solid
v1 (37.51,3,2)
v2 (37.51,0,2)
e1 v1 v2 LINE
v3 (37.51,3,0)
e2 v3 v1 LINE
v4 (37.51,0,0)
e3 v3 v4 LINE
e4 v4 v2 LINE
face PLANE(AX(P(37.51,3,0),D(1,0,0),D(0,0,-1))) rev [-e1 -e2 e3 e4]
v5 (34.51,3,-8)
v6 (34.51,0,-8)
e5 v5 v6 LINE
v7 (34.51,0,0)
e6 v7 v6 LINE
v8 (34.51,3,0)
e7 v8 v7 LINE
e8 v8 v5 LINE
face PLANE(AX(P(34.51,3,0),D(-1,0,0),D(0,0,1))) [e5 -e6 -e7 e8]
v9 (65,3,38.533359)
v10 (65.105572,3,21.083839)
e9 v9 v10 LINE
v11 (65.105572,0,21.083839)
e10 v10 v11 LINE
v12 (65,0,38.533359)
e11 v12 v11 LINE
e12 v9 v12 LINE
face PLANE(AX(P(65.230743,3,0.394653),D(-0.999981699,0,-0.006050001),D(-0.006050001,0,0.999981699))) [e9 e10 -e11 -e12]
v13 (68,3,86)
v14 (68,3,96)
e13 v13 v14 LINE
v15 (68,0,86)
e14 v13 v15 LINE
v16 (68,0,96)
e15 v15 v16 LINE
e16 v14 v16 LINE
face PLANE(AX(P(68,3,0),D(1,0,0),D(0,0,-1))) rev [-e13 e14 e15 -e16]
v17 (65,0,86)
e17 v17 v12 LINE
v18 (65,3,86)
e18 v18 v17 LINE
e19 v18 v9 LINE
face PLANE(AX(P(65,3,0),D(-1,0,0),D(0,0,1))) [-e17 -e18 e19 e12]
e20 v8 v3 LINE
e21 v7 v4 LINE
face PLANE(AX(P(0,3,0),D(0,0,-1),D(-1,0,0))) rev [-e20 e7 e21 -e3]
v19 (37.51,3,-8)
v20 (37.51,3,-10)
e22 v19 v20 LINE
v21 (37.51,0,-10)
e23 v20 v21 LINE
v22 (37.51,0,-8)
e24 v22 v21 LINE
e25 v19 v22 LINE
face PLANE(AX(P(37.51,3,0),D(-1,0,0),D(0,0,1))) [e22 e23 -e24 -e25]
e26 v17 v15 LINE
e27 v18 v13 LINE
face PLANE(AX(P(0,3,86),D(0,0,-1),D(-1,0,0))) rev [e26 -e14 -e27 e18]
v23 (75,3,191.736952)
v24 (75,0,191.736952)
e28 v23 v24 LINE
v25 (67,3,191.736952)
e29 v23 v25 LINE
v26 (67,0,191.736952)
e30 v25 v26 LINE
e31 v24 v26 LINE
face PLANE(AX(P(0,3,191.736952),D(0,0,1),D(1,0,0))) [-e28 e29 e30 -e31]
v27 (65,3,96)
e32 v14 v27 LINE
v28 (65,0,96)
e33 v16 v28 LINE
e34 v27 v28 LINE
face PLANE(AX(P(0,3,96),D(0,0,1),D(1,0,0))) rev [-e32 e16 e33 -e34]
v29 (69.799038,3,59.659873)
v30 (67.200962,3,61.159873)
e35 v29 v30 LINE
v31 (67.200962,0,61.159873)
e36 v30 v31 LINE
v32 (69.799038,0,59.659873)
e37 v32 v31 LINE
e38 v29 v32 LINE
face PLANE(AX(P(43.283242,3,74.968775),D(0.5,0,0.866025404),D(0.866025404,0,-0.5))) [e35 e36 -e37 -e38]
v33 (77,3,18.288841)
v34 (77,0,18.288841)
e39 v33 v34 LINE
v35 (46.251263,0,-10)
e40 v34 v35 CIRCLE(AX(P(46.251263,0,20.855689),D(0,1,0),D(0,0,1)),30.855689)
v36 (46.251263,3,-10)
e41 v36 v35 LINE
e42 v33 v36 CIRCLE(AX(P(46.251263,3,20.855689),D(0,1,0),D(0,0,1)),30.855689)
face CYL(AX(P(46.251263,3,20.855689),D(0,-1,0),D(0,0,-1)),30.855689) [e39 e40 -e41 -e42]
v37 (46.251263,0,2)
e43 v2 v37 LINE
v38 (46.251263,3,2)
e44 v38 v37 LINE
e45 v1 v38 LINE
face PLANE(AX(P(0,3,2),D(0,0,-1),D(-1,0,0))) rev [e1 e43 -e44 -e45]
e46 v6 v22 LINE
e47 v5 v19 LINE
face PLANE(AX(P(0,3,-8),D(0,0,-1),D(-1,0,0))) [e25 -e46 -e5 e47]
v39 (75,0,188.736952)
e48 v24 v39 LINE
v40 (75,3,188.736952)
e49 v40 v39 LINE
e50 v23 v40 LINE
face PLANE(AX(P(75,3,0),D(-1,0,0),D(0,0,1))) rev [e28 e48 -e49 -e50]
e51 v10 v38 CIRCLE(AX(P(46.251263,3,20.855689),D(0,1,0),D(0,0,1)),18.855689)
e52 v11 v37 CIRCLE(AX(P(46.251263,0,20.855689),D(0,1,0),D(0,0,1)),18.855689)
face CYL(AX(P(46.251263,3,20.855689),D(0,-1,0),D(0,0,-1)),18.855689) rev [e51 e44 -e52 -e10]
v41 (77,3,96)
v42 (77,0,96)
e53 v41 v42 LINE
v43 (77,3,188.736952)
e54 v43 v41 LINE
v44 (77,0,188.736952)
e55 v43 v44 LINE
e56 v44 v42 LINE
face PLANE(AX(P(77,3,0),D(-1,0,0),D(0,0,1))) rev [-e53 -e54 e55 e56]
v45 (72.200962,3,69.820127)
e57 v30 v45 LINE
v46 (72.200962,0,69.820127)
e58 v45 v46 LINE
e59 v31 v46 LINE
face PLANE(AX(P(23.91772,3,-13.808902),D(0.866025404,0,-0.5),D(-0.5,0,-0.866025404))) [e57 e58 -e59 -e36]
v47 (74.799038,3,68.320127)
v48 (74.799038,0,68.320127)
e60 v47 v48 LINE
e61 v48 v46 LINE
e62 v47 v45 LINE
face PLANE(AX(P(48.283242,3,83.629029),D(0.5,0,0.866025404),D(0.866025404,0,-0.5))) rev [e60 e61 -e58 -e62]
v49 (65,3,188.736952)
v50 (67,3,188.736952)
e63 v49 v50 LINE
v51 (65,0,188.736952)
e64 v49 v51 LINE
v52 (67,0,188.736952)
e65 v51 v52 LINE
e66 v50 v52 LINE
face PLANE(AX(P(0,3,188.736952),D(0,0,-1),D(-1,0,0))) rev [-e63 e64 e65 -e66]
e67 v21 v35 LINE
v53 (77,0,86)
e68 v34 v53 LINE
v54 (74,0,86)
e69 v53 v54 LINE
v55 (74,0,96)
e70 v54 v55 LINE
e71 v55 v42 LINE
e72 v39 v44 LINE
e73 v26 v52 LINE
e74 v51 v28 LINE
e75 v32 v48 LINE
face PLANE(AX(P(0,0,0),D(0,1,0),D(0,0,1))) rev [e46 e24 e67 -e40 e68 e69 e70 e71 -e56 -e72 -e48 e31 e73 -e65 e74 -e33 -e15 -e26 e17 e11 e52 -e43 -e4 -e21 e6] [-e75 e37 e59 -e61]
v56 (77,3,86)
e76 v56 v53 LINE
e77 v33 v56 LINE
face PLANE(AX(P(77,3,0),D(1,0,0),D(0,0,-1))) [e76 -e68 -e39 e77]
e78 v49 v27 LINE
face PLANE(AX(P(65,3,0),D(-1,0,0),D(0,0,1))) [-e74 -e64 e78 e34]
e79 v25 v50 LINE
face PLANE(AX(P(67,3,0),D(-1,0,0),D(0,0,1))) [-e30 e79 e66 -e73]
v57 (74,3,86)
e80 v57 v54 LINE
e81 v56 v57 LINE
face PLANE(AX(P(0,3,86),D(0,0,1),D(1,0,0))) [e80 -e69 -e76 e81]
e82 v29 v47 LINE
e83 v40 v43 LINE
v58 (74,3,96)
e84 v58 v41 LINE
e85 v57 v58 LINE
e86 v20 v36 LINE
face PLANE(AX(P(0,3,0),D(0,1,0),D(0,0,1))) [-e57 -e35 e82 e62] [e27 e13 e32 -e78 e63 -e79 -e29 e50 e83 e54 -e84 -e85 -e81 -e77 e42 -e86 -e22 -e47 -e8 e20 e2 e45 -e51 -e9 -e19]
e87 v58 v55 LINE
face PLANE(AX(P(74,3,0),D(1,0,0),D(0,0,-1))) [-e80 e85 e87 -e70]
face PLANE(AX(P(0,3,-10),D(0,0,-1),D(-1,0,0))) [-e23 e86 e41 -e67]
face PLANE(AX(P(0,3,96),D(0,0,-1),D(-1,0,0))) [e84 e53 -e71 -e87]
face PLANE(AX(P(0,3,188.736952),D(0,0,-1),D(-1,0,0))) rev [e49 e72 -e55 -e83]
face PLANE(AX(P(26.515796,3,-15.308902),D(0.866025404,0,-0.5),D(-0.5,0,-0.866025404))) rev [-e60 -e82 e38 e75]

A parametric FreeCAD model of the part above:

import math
import FreeCAD as App
import Part
import Sketcher
from FreeCAD import Vector
Q = App.Units.Quantity


def add_polygon(sketch, points):
    """Adds a closed chain of lines whose ends are joined by coincident constraints."""
    first, n = sketch.GeometryCount, len(points)
    for a, b in zip(points, points[1:] + points[:1]):
        sketch.addGeometry(Part.LineSegment(App.Vector(*a, 0), App.Vector(*b, 0)), False)
    for i in range(n):
        sketch.addConstraint(Sketcher.Constraint("Coincident", first + i, 2, first + (i + 1) % n, 1))

doc = App.newDocument("Part")
body = doc.addObject("PartDesign::Body", "Body")

# Sketch on XZ plane
sketch1 = doc.addObject("Sketcher::SketchObject", "Sketch")
body.addObject(sketch1)
sketch1.AttachmentSupport = (doc.XZ_Plane, [""])
sketch1.MapMode = "FlatFace"
sketch1.addGeometry(Part.LineSegment(Vector(34.51, 0, 0), Vector(37.51, 0, 0)), False)  # 0
sketch1.addGeometry(Part.LineSegment(Vector(37.51, 0, 0), Vector(37.51, 2, 0)), False)  # 1
sketch1.addGeometry(Part.LineSegment(Vector(37.51, 2, 0), Vector(46.25, 2, 0)), False)  # 2
sketch1.addGeometry(Part.ArcOfCircle(Part.Circle(Vector(46.25, 20.86, 0), Vector(0, 0, 1), 18.86), math.radians(-90), math.radians(0)), False)  # 3
sketch1.addGeometry(Part.ArcOfCircle(Part.Circle(Vector(46.25, 20.86, 0), Vector(0, 0, 1), 18.86), math.radians(0), math.radians(0.69)), False)  # 4
sketch1.addGeometry(Part.LineSegment(Vector(65.11, 21.08, 0), Vector(65, 38.53, 0)), False)  # 5
sketch1.addGeometry(Part.LineSegment(Vector(65, 38.53, 0), Vector(65, 86, 0)), False)  # 6
sketch1.addGeometry(Part.LineSegment(Vector(65, 86, 0), Vector(68, 86, 0)), False)  # 7
sketch1.addGeometry(Part.LineSegment(Vector(68, 86, 0), Vector(68, 96, 0)), False)  # 8
sketch1.addGeometry(Part.LineSegment(Vector(68, 96, 0), Vector(65, 96, 0)), False)  # 9
sketch1.addGeometry(Part.LineSegment(Vector(65, 96, 0), Vector(65, 188.74, 0)), False)  # 10
sketch1.addGeometry(Part.LineSegment(Vector(65, 188.74, 0), Vector(67, 188.74, 0)), False)  # 11
sketch1.addGeometry(Part.LineSegment(Vector(67, 188.74, 0), Vector(67, 191.74, 0)), False)  # 12
sketch1.addGeometry(Part.LineSegment(Vector(67, 191.74, 0), Vector(75, 191.74, 0)), False)  # 13
sketch1.addGeometry(Part.LineSegment(Vector(75, 191.74, 0), Vector(75, 188.74, 0)), False)  # 14
sketch1.addGeometry(Part.LineSegment(Vector(75, 188.74, 0), Vector(77, 188.74, 0)), False)  # 15
sketch1.addGeometry(Part.LineSegment(Vector(77, 188.74, 0), Vector(77, 96, 0)), False)  # 16
sketch1.addGeometry(Part.LineSegment(Vector(77, 96, 0), Vector(74, 96, 0)), False)  # 17
sketch1.addGeometry(Part.LineSegment(Vector(74, 96, 0), Vector(74, 86, 0)), False)  # 18
sketch1.addGeometry(Part.LineSegment(Vector(74, 86, 0), Vector(77, 86, 0)), False)  # 19
sketch1.addGeometry(Part.LineSegment(Vector(77, 86, 0), Vector(77, 18.29, 0)), False)  # 20
sketch1.addGeometry(Part.ArcOfCircle(Part.Circle(Vector(46.25, 20.86, 0), Vector(0, 0, 1), 30.86), math.radians(-90), math.radians(-5)), False)  # 21
sketch1.addGeometry(Part.LineSegment(Vector(46.25, -10, 0), Vector(37.51, -10, 0)), False)  # 22
sketch1.addGeometry(Part.LineSegment(Vector(37.51, -10, 0), Vector(37.51, -8, 0)), False)  # 23
sketch1.addGeometry(Part.LineSegment(Vector(37.51, -8, 0), Vector(34.51, -8, 0)), False)  # 24
sketch1.addGeometry(Part.LineSegment(Vector(34.51, -8, 0), Vector(34.51, 0, 0)), False)  # 25
add_polygon(sketch1, [(72.2, 69.82), (67.2, 61.16), (69.8, 59.66), (74.8, 68.32)])  # lines 26-29
sketch1.addConstraint([
    Sketcher.Constraint("Coincident", 0, 2, 1, 1),
    Sketcher.Constraint("Coincident", 1, 2, 2, 1),
    Sketcher.Constraint("Tangent", 2, 2, 3, 1),
    Sketcher.Constraint("Tangent", 3, 2, 4, 1),
    Sketcher.Constraint("Coincident", 4, 2, 5, 1),
    Sketcher.Constraint("Coincident", 5, 2, 6, 1),
    Sketcher.Constraint("Coincident", 6, 2, 7, 1),
    Sketcher.Constraint("Coincident", 7, 2, 8, 1),
    Sketcher.Constraint("Coincident", 8, 2, 9, 1),
    Sketcher.Constraint("Coincident", 9, 2, 10, 1),
    Sketcher.Constraint("Coincident", 10, 2, 11, 1),
    Sketcher.Constraint("Coincident", 11, 2, 12, 1),
    Sketcher.Constraint("Coincident", 12, 2, 13, 1),
    Sketcher.Constraint("Coincident", 13, 2, 14, 1),
    Sketcher.Constraint("Coincident", 14, 2, 15, 1),
    Sketcher.Constraint("Coincident", 15, 2, 16, 1),
    Sketcher.Constraint("Coincident", 16, 2, 17, 1),
    Sketcher.Constraint("Coincident", 17, 2, 18, 1),
    Sketcher.Constraint("Coincident", 18, 2, 19, 1),
    Sketcher.Constraint("Coincident", 19, 2, 20, 1),
    Sketcher.Constraint("Coincident", 20, 2, 21, 2),
    Sketcher.Constraint("Tangent", 21, 1, 22, 1),
    Sketcher.Constraint("Coincident", 22, 2, 23, 1),
    Sketcher.Constraint("Coincident", 23, 2, 24, 1),
    Sketcher.Constraint("Coincident", 24, 2, 25, 1),
    Sketcher.Constraint("Coincident", 25, 2, 0, 1),
    Sketcher.Constraint("Horizontal", 0),
    Sketcher.Constraint("Vertical", 1),
    Sketcher.Constraint("Horizontal", 2),
    Sketcher.Constraint("Vertical", 6),
    Sketcher.Constraint("Horizontal", 7),
    Sketcher.Constraint("Vertical", 8),
    Sketcher.Constraint("Horizontal", 9),
    Sketcher.Constraint("Vertical", 10),
    Sketcher.Constraint("Horizontal", 11),
    Sketcher.Constraint("Vertical", 12),
    Sketcher.Constraint("Horizontal", 13),
    Sketcher.Constraint("Vertical", 14),
    Sketcher.Constraint("Horizontal", 15),
    Sketcher.Constraint("Vertical", 16),
    Sketcher.Constraint("Horizontal", 17),
    Sketcher.Constraint("Vertical", 18),
    Sketcher.Constraint("Horizontal", 19),
    Sketcher.Constraint("Vertical", 20),
    Sketcher.Constraint("Horizontal", 22),
    Sketcher.Constraint("Vertical", 23),
    Sketcher.Constraint("Horizontal", 24),
    Sketcher.Constraint("Vertical", 25),
    Sketcher.Constraint("Coincident", 21, 3, 3, 3),
    Sketcher.Constraint("PointOnObject", 0, 2, -1),
    Sketcher.Constraint("Perpendicular", 26, 27),
    Sketcher.Constraint("Perpendicular", 27, 28),
    Sketcher.Constraint("Perpendicular", 28, 29),
    Sketcher.Constraint("Horizontal", 21, 3, 3, 2),
    Sketcher.Constraint("Horizontal", 11, 2, 14, 2),
    Sketcher.Constraint("Horizontal", 9, 2, 16, 2),
    Sketcher.Constraint("Horizontal", 7, 2, 18, 2),
    Sketcher.Constraint("Vertical", 6, 2, 9, 2),
    Sketcher.Constraint("Vertical", 16, 2, 19, 2),
    Sketcher.Constraint("Vertical", 1, 2, 22, 2),
    Sketcher.Constraint("Equal", 0, 7),
    Sketcher.Constraint("Equal", 11, 15),
    Sketcher.Constraint("Equal", 9, 17),
    Sketcher.Constraint("Equal", 15, 1),
    Sketcher.Constraint("Equal", 24, 12),
    Sketcher.Constraint("Equal", 1, 23),
    Sketcher.Constraint("Equal", 13, 25),
    Sketcher.Constraint("DistanceX", 0, 1, 0, 2, 3.0),
    Sketcher.Constraint("DistanceX", 11, 1, 11, 2, 2.0),
    Sketcher.Constraint("DistanceX", 13, 1, 13, 2, 8.0),
    Sketcher.Constraint("DistanceY", 8, 1, 8, 2, 10.0),
    Sketcher.Constraint("Angle", 26, Q("-120 deg")),
    Sketcher.Constraint("Distance", 26, 10.0),
    Sketcher.Constraint("Distance", 27, 3.0),
    Sketcher.Constraint("DistanceX", -1, 1, 5, 2, 65.0),
    Sketcher.Constraint("DistanceY", -1, 1, 6, 2, 86.0),
    Sketcher.Constraint("DistanceX", -1, 1, 0, 2, 37.51),
    Sketcher.Constraint("Radius", 3, 18.855689),
    Sketcher.Constraint("Radius", 4, 18.855695),
    Sketcher.Constraint("DistanceY", 6, 1, 6, 2, 47.466641),
    Sketcher.Constraint("DistanceY", 10, 1, 10, 2, 92.736952),
    Sketcher.Constraint("DistanceY", 20, 2, 20, 1, 67.711159),
    Sketcher.Constraint("Distance", 5, 17.449839),
    Sketcher.Constraint("DistanceX", -1, 1, 26, 2, 67.200962),
    Sketcher.Constraint("DistanceY", -1, 1, 26, 2, 61.159873),
])
pad1 = doc.addObject("PartDesign::Pad", "Pad")
body.addObject(pad1)
pad1.Profile = sketch1
pad1.Length = 3
pad1.Reversed = True

doc.recompute()
